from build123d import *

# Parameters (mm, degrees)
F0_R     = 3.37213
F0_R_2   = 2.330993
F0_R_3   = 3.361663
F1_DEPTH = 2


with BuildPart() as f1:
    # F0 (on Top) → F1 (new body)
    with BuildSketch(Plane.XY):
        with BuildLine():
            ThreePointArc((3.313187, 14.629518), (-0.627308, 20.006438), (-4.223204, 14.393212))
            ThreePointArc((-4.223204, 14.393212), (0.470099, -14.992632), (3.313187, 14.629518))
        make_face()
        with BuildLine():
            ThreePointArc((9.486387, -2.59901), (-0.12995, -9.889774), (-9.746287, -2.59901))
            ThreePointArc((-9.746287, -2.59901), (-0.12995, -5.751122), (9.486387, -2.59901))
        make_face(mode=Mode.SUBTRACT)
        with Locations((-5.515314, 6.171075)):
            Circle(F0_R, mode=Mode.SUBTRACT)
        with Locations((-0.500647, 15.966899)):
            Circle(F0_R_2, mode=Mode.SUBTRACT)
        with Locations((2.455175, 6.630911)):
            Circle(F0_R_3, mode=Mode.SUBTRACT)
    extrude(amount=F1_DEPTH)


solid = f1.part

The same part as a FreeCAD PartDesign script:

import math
import FreeCAD as App
import Part
import Sketcher
Q = App.Units.Quantity

doc = App.newDocument("Part")
body = doc.addObject("PartDesign::Body", "Body")

sketch1 = body.newObject("Sketcher::SketchObject", "Sketch")
sketch1.AttachmentSupport = (doc.getObject("XY_Plane"), [""])
sketch1.MapMode = "FlatFace"
sketch1.addGeometry([
    Part.ArcOfCircle(Part.Circle(App.Vector(-0.5, 16, 0), App.Vector(0, 0, 1), 4), math.radians(-19), math.radians(203)),
    Part.ArcOfCircle(Part.Circle(App.Vector(0, 0, 0), App.Vector(0, 0, 1), 15), math.radians(106), math.radians(437)),
    Part.ArcOfCircle(Part.Circle(App.Vector(-0.1, 10.5, 0), App.Vector(0, 0, 1), 16.2), math.radians(-126), math.radians(-54)),
    Part.ArcOfCircle(Part.Circle(App.Vector(-0.1, 0.1, 0), App.Vector(0, 0, 1), 10), math.radians(-164), math.radians(-16)),
    Part.Circle(App.Vector(-5.5, 6.2, 0), App.Vector(0, 0, 1), 3.4),
    Part.Circle(App.Vector(-0.5, 16, 0), App.Vector(0, 0, 1), 2.3),
    Part.Circle(App.Vector(2.5, 6.6, 0), App.Vector(0, 0, 1), 3.4),
], False)
sketch1.addConstraint([
    Sketcher.Constraint("Coincident", 0, 1, 1, 2),
    Sketcher.Constraint("Coincident", 1, 1, 0, 2),
    Sketcher.Constraint("Coincident", 2, 1, 3, 1),
    Sketcher.Constraint("Coincident", 3, 2, 2, 2),
    Sketcher.Constraint("Coincident", 1, 3, -1, 1),
    Sketcher.Constraint("Coincident", 5, 3, 0, 3),
    Sketcher.Constraint("Horizontal", 2, 1, 3, 2),
    Sketcher.Constraint("Radius", 1, Q("15 mm")),
    Sketcher.Constraint("Diameter", 4, Q("6.74426 mm")),
    Sketcher.Constraint("Diameter", 5, Q("4.661986 mm")),
    Sketcher.Constraint("Diameter", 6, Q("6.723326 mm")),
    Sketcher.Constraint("Radius", 0, Q("4.041524 mm")),
    Sketcher.Constraint("Radius", 2, Q("16.244624 mm")),
    Sketcher.Constraint("Radius", 3, Q("9.987237 mm")),
    Sketcher.Constraint("DistanceY", -1, 1, 0, 3, Q("15.966899 mm")),
    Sketcher.Constraint("DistanceY", -1, 1, 2, 3, Q("10.493502 mm")),
    Sketcher.Constraint("DistanceX", 4, 3, 0, 1, Q("8.828501 mm")),
    Sketcher.Constraint("DistanceX", 4, 3, 3, 2, Q("15.001701 mm")),
    Sketcher.Constraint("DistanceX", 2, 3, -1, 1, Q("0.12995 mm")),
    Sketcher.Constraint("DistanceY", -1, 1, 6, 3, Q("6.630911 mm")),
    Sketcher.Constraint("DistanceY", -1, 1, 0, 1, Q("14.629518 mm")),
    Sketcher.Constraint("DistanceY", 3, 3, 4, 3, Q("6.073612 mm")),
    Sketcher.Constraint("DistanceX", 4, 3, 6, 3, Q("7.970489 mm")),
])
pad1 = body.newObject("PartDesign::Pad", "Pad")
pad1.Profile = sketch1
pad1.Length = 2

doc.recompute()
